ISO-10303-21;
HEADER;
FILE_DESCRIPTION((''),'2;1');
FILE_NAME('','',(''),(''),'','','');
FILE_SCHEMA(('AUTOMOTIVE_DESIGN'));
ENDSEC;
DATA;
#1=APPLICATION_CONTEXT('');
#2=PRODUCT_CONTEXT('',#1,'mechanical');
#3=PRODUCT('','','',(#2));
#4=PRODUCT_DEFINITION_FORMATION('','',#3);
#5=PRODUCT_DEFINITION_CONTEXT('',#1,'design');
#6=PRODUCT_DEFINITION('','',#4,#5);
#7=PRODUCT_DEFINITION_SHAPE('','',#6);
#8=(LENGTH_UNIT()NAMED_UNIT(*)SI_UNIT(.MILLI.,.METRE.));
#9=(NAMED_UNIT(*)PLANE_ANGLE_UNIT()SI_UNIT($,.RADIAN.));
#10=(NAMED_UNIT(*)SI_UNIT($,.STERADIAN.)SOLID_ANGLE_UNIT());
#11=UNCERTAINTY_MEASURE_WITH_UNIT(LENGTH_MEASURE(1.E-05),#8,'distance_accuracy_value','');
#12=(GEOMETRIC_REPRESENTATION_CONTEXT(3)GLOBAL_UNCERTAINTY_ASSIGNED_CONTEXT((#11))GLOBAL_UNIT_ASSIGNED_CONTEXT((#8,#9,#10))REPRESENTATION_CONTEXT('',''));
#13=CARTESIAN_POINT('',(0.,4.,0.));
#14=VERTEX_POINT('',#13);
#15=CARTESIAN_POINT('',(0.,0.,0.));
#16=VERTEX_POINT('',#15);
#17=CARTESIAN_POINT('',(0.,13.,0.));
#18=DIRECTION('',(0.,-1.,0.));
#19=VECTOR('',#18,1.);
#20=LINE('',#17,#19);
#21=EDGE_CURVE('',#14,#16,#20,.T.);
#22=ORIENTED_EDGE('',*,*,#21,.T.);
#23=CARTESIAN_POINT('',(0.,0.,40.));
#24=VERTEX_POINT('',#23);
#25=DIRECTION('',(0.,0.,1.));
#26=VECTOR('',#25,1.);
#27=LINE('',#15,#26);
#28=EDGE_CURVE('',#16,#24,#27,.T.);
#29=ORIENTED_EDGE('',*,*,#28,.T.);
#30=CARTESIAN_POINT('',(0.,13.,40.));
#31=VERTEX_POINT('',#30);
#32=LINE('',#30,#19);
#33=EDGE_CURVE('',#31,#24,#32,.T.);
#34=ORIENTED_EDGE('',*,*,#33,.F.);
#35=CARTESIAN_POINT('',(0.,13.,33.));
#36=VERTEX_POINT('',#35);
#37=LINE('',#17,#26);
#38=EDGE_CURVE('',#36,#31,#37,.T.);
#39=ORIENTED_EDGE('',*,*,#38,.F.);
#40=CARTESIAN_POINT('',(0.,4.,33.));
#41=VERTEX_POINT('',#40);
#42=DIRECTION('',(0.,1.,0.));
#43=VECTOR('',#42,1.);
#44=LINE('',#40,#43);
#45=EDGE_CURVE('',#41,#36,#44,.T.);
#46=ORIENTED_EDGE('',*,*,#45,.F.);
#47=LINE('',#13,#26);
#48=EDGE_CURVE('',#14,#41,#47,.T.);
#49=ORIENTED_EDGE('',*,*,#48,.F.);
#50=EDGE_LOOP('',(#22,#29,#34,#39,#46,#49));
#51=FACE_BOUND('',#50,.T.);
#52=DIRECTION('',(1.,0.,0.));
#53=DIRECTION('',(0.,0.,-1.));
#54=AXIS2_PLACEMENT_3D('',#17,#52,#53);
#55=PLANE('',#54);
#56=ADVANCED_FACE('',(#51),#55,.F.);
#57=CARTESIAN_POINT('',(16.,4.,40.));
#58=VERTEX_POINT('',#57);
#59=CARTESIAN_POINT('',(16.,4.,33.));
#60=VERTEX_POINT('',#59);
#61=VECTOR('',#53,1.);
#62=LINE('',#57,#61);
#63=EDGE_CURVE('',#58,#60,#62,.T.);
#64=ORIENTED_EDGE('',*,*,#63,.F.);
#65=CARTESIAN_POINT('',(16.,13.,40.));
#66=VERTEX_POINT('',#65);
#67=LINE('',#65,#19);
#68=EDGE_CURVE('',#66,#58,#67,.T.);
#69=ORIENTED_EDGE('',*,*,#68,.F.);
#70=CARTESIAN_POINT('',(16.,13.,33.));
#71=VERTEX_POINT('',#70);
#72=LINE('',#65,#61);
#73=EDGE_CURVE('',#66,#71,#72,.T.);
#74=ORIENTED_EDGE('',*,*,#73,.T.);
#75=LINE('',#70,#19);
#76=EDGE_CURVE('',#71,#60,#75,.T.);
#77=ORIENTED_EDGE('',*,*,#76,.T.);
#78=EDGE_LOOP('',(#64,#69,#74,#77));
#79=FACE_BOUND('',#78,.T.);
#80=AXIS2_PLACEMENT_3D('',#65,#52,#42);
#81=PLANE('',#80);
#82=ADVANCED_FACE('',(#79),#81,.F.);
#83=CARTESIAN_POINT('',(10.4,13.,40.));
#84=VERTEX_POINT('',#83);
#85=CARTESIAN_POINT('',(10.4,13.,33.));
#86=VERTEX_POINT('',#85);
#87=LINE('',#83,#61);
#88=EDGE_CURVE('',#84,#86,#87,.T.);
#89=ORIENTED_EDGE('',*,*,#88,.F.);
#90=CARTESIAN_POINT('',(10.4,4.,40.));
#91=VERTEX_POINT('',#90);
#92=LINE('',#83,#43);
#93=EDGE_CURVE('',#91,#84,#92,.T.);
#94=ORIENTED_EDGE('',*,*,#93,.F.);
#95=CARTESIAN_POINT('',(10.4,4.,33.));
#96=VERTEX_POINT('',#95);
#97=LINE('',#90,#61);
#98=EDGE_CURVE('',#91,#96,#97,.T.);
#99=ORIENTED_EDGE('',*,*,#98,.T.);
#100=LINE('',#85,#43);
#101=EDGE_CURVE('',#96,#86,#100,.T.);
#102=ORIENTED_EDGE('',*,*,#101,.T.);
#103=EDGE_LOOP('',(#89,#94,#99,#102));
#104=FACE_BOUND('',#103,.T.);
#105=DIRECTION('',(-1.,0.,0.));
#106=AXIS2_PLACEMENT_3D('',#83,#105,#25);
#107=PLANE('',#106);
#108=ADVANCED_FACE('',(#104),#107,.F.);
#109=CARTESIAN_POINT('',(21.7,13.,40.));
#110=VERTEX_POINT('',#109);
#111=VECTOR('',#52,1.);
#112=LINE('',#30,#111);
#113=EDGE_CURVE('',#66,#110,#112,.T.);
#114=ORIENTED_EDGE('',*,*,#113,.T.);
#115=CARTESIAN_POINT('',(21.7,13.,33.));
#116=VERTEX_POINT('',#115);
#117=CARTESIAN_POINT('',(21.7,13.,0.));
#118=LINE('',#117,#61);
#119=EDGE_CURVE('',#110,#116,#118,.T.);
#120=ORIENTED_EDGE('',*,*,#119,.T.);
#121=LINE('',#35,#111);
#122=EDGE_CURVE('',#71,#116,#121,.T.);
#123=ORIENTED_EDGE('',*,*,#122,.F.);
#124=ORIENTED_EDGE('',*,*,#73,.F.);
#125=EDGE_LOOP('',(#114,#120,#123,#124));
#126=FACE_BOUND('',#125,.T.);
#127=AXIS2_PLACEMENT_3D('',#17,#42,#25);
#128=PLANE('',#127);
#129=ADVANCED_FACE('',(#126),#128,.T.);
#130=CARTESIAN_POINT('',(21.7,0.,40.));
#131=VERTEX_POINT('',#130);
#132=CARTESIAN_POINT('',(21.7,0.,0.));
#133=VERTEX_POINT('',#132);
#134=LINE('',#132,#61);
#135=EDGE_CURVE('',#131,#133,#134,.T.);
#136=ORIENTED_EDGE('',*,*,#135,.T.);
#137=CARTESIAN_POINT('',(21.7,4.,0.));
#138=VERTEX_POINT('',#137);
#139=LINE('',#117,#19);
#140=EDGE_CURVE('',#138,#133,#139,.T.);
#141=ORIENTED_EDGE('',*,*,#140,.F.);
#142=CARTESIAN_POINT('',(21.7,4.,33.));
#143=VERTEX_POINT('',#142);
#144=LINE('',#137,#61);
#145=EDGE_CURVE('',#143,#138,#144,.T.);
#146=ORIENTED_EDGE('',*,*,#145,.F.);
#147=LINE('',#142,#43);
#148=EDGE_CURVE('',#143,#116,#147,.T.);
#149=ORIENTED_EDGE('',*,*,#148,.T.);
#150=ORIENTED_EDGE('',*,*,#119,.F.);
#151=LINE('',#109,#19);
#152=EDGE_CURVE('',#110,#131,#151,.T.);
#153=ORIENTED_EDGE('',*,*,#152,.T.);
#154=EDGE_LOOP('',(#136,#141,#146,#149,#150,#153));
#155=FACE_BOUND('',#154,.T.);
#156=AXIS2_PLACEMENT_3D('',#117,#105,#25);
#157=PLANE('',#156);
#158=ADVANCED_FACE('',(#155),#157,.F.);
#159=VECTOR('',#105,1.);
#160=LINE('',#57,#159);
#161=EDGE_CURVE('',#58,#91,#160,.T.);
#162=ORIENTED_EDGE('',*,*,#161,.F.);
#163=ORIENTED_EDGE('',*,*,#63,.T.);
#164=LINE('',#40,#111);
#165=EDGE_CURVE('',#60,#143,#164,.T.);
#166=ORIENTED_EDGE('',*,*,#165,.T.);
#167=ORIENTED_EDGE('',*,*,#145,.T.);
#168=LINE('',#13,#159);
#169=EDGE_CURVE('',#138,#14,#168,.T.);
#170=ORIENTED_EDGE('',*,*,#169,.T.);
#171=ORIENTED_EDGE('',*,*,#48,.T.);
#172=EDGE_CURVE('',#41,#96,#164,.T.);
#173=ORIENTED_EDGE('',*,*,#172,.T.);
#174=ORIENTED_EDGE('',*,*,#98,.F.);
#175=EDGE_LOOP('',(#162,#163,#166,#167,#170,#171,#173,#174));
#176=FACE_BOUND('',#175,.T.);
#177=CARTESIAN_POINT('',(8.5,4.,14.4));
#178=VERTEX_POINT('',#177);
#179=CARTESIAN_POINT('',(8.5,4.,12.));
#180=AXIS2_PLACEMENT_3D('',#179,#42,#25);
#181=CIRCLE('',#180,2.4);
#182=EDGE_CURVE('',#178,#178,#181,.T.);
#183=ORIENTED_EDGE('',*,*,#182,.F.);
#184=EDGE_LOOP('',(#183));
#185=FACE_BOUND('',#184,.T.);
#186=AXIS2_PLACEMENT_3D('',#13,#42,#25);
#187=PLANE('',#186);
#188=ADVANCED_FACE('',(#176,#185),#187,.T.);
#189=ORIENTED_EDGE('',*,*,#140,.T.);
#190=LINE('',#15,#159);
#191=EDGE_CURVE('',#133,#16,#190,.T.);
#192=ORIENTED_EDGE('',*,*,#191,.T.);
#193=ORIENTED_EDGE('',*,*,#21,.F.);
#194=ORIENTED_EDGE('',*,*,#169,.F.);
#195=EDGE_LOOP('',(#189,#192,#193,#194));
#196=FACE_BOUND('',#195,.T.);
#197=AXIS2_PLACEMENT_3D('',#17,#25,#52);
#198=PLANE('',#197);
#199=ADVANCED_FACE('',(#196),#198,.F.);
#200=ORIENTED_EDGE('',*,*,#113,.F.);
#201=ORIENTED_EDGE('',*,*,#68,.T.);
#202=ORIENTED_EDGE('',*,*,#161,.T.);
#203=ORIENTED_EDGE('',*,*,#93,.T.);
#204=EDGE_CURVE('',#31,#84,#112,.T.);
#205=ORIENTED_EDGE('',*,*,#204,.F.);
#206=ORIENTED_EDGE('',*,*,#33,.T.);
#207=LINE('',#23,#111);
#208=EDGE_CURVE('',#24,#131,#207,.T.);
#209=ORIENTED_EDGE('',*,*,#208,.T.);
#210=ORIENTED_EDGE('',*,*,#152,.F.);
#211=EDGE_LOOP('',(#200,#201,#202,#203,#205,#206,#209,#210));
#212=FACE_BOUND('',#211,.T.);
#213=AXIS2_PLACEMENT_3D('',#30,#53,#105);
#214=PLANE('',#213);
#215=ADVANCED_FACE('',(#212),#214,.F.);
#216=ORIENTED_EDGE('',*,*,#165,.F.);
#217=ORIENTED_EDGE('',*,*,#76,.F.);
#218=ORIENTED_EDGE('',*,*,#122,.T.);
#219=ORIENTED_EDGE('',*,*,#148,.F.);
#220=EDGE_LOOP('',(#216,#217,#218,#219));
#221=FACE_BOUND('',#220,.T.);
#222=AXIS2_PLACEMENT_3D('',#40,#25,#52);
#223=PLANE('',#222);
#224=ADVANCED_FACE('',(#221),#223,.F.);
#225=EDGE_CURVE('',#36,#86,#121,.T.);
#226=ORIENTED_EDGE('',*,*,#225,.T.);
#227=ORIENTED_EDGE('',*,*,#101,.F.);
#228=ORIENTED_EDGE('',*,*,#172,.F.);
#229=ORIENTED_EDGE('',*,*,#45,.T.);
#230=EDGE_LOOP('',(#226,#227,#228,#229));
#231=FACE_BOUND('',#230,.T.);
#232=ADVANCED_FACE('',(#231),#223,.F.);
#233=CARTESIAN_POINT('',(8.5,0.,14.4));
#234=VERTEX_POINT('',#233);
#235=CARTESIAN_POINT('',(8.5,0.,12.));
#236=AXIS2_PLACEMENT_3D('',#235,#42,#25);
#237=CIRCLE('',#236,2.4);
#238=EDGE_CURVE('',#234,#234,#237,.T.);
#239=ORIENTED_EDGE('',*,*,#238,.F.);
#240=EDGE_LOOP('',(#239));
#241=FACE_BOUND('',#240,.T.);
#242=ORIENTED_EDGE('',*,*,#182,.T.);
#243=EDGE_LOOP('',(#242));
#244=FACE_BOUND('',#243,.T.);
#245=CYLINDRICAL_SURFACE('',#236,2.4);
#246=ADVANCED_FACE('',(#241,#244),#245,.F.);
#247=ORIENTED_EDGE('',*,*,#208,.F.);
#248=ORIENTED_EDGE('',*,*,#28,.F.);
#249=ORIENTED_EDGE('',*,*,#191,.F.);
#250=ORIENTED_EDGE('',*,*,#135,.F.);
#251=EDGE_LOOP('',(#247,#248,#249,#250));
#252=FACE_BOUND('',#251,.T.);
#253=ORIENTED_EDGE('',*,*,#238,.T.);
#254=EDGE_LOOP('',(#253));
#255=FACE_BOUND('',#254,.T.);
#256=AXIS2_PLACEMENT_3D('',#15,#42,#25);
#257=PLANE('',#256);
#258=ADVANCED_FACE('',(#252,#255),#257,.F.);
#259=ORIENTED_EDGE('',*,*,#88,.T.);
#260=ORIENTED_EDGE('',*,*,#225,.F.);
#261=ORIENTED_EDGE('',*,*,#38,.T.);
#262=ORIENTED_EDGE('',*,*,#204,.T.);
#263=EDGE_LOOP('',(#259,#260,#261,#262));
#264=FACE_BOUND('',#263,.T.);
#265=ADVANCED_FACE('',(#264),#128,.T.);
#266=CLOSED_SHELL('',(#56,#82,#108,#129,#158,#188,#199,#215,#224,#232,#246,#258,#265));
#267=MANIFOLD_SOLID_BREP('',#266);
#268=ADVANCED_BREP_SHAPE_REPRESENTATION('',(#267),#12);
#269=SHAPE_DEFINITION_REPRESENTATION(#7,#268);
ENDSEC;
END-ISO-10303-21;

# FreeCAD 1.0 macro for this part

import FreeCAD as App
import Part
import Sketcher

doc = App.newDocument("Part")
body = doc.addObject("PartDesign::Body", "Body")

# Sketch on XZ plane
sketch1 = body.newObject("Sketcher::SketchObject", "Sketch")
sketch1.AttachmentSupport = (doc.getObject("XZ_Plane"), [""])
sketch1.MapMode = "FlatFace"
sketch1.addGeometry(Part.LineSegment(App.Vector(0, 0, 0), App.Vector(0, 40, 0)), False)
sketch1.addGeometry(Part.LineSegment(App.Vector(0, 40, 0), App.Vector(21.7, 40, 0)), False)
sketch1.addGeometry(Part.LineSegment(App.Vector(21.7, 40, 0), App.Vector(21.7, 0, 0)), False)
sketch1.addGeometry(Part.LineSegment(App.Vector(21.7, 0, 0), App.Vector(0, 0, 0)), False)
sketch1.addConstraint(Sketcher.Constraint("Coincident", 0, 2, 1, 1))
sketch1.addConstraint(Sketcher.Constraint("Coincident", 1, 2, 2, 1))
sketch1.addConstraint(Sketcher.Constraint("Coincident", 2, 2, 3, 1))
sketch1.addConstraint(Sketcher.Constraint("Coincident", 3, 2, 0, 1))
sketch1.addConstraint(Sketcher.Constraint("Vertical", 0))
sketch1.addConstraint(Sketcher.Constraint("Horizontal", 1))
sketch1.addConstraint(Sketcher.Constraint("Vertical", 2))
sketch1.addConstraint(Sketcher.Constraint("Horizontal", 3))
sketch1.addConstraint(Sketcher.Constraint("Coincident", 3, 2, -1, 1))
sketch1.addConstraint(Sketcher.Constraint("DistanceY", 0, 1, 0, 2, 40.0))
sketch1.addConstraint(Sketcher.Constraint("DistanceX", 1, 1, 1, 2, 21.7))
pad1 = body.newObject("PartDesign::Pad", "Pad")
pad1.Profile = sketch1
pad1.Length = 13
pad1.Reversed = True

# Sketch on XZ plane
sketch2 = body.newObject("Sketcher::SketchObject", "Sketch001")
sketch2.AttachmentSupport = (doc.getObject("XZ_Plane"), [""])
sketch2.MapMode = "FlatFace"
sketch2.AttachmentOffset = App.Placement(App.Vector(0, 0, -13), App.Rotation())
sketch2.addGeometry(Part.LineSegment(App.Vector(0, 0, 0), App.Vector(0, 33, 0)), False)
sketch2.addGeometry(Part.LineSegment(App.Vector(0, 33, 0), App.Vector(21.7, 33, 0)), False)
sketch2.addGeometry(Part.LineSegment(App.Vector(21.7, 33, 0), App.Vector(21.7, 0, 0)), False)
sketch2.addGeometry(Part.LineSegment(App.Vector(21.7, 0, 0), App.Vector(0, 0, 0)), False)
sketch2.addConstraint(Sketcher.Constraint("Coincident", 0, 2, 1, 1))
sketch2.addConstraint(Sketcher.Constraint("Coincident", 1, 2, 2, 1))
sketch2.addConstraint(Sketcher.Constraint("Coincident", 2, 2, 3, 1))
sketch2.addConstraint(Sketcher.Constraint("Coincident", 3, 2, 0, 1))
sketch2.addConstraint(Sketcher.Constraint("Vertical", 0))
sketch2.addConstraint(Sketcher.Constraint("Horizontal", 1))
sketch2.addConstraint(Sketcher.Constraint("Vertical", 2))
sketch2.addConstraint(Sketcher.Constraint("Horizontal", 3))
sketch2.addConstraint(Sketcher.Constraint("Coincident", 3, 2, -1, 1))
sketch2.addConstraint(Sketcher.Constraint("DistanceY", 0, 1, 0, 2, 33.0))
sketch2.addConstraint(Sketcher.Constraint("DistanceX", 1, 1, 1, 2, 21.7))
pocket1 = body.newObject("PartDesign::Pocket", "Pocket")
pocket1.Profile = sketch2
pocket1.Length = 9
pocket1.Reversed = True

# Sketch on XY plane
sketch3 = body.newObject("Sketcher::SketchObject", "Sketch002")
sketch3.AttachmentSupport = (doc.getObject("XY_Plane"), [""])
sketch3.MapMode = "FlatFace"
sketch3.AttachmentOffset = App.Placement(App.Vector(0, 0, 33), App.Rotation())
sketch3.addGeometry(Part.LineSegment(App.Vector(16, 13, 0), App.Vector(16, 4, 0)), False)
sketch3.addGeometry(Part.LineSegment(App.Vector(16, 4, 0), App.Vector(10.4, 4, 0)), False)
sketch3.addGeometry(Part.LineSegment(App.Vector(10.4, 4, 0), App.Vector(10.4, 13, 0)), False)
sketch3.addGeometry(Part.LineSegment(App.Vector(10.4, 13, 0), App.Vector(16, 13, 0)), False)
sketch3.addConstraint(Sketcher.Constraint("Coincident", 0, 2, 1, 1))
sketch3.addConstraint(Sketcher.Constraint("Coincident", 1, 2, 2, 1))
sketch3.addConstraint(Sketcher.Constraint("Coincident", 2, 2, 3, 1))
sketch3.addConstraint(Sketcher.Constraint("Coincident", 3, 2, 0, 1))
sketch3.addConstraint(Sketcher.Constraint("Vertical", 0))
sketch3.addConstraint(Sketcher.Constraint("Horizontal", 1))
sketch3.addConstraint(Sketcher.Constraint("Vertical", 2))
sketch3.addConstraint(Sketcher.Constraint("Horizontal", 3))
sketch3.addConstraint(Sketcher.Constraint("DistanceY", 0, 2, 0, 1, 9.0))
sketch3.addConstraint(Sketcher.Constraint("DistanceX", 1, 2, 1, 1, 5.6))
sketch3.addConstraint(Sketcher.Constraint("DistanceX", -1, 1, 0, 2, 16.0))
sketch3.addConstraint(Sketcher.Constraint("DistanceY", -1, 1, 0, 2, 4.0))
pocket2 = body.newObject("PartDesign::Pocket", "Pocket001")
pocket2.Profile = sketch3
pocket2.Type = "ThroughAll"
pocket2.Reversed = True

# Sketch on XZ plane
sketch4 = body.newObject("Sketcher::SketchObject", "Sketch003")
sketch4.AttachmentSupport = (doc.getObject("XZ_Plane"), [""])
sketch4.MapMode = "FlatFace"
sketch4.AttachmentOffset = App.Placement(App.Vector(0, 0, -4), App.Rotation())
sketch4.addGeometry(Part.Circle(App.Vector(8.5, 12, 0), App.Vector(0, 0, 1), 2.4), False)
sketch4.addConstraint(Sketcher.Constraint("Diameter", 0, 4.8))
sketch4.addConstraint(Sketcher.Constraint("DistanceY", -1, 1, 0, 3, 12.0))
sketch4.addConstraint(Sketcher.Constraint("DistanceX", -1, 1, 0, 3, 8.5))
pocket3 = body.newObject("PartDesign::Pocket", "Pocket002")
pocket3.Profile = sketch4
pocket3.Type = "ThroughAll"
pocket3.Reversed = True

doc.recompute()
